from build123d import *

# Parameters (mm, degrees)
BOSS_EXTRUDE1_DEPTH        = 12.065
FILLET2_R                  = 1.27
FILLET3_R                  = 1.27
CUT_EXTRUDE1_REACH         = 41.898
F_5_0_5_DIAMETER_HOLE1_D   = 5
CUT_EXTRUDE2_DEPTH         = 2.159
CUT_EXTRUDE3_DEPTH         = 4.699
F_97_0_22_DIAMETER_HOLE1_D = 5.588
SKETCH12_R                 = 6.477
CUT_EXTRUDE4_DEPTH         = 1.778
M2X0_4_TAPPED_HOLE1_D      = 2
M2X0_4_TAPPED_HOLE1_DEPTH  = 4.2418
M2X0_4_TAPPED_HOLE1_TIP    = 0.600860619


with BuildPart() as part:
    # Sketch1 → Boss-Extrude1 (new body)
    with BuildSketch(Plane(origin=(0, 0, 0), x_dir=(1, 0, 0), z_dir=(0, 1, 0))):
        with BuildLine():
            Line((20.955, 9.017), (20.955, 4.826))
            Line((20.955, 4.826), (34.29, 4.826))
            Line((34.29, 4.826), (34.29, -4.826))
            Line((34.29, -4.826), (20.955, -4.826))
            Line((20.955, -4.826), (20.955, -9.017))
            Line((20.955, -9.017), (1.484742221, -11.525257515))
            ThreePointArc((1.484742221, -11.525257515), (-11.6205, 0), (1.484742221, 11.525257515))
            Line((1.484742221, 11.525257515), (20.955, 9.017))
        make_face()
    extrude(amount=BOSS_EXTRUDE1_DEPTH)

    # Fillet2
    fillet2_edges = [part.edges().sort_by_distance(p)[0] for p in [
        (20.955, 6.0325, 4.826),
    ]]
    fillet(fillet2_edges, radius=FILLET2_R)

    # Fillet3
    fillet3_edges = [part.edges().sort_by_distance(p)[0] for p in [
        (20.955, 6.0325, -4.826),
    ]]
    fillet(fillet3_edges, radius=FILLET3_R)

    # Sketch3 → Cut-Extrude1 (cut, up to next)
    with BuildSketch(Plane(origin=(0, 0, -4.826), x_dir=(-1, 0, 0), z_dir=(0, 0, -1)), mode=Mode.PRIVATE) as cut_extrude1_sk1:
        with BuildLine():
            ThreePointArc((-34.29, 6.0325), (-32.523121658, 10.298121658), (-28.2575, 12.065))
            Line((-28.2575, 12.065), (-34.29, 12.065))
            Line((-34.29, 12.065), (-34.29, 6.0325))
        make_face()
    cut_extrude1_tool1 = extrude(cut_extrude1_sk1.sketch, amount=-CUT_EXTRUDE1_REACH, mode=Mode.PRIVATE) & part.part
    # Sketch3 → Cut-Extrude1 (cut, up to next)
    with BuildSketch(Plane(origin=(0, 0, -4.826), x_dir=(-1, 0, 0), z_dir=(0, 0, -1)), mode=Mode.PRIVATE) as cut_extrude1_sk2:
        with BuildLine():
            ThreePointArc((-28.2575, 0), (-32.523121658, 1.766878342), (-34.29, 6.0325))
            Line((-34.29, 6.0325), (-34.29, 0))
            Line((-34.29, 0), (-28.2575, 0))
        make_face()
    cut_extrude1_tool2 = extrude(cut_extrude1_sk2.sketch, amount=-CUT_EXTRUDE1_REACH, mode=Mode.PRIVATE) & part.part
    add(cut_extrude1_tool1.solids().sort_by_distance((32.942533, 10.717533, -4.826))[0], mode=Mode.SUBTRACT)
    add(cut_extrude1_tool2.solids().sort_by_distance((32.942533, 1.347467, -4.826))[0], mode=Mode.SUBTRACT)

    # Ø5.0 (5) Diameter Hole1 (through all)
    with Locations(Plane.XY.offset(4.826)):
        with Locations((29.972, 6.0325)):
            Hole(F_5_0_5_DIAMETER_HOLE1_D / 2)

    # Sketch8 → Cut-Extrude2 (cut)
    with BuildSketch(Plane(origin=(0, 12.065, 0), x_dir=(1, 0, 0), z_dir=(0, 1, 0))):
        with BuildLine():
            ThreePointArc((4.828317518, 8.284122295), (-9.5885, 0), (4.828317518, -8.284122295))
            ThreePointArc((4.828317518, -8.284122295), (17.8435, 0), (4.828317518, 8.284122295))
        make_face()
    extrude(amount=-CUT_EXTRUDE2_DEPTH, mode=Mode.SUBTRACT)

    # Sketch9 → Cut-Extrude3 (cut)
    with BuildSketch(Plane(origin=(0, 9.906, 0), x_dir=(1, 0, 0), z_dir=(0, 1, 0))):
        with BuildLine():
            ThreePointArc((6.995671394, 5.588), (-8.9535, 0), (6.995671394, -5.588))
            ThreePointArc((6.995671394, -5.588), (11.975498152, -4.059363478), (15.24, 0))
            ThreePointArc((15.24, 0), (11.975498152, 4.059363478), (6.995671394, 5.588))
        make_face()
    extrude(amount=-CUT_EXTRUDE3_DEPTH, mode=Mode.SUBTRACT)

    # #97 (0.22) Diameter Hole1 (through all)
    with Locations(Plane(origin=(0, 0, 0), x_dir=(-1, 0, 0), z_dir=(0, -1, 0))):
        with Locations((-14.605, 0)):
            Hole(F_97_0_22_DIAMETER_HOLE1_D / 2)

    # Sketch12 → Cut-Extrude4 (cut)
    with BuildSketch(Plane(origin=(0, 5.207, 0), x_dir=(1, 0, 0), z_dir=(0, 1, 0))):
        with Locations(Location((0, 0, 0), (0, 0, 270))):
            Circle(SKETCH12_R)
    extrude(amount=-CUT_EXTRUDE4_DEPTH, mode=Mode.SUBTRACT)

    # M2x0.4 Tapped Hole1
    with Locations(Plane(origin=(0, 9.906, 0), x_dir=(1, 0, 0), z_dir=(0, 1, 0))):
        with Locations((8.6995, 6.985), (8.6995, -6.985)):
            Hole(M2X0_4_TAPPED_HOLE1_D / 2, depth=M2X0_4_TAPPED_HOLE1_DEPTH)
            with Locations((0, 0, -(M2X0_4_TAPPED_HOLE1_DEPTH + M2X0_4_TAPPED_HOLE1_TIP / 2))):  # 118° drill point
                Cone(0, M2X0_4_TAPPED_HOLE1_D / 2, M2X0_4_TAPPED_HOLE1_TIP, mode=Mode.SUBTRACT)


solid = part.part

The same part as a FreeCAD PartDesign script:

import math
import FreeCAD as App
import Part
import Sketcher

V = App.Vector
Q = App.Units.Quantity


def edges_at(feature, points):
    """Names of the edges that pass closest to the given points."""
    edges = feature.Shape.Edges
    near = lambda p: min(range(len(edges)), key=lambda i: edges[i].distToShape(Part.Vertex(*p))[0])
    return sorted({f"Edge{near(p) + 1}" for p in points})

doc = App.newDocument("Part")
body = doc.addObject("PartDesign::Body", "Body")

sketch1 = body.newObject("Sketcher::SketchObject", "Sketch")
sketch1.AttachmentSupport = (doc.getObject("XZ_Plane"), [""])
sketch1.MapMode = "FlatFace"
sketch1.addGeometry(Part.LineSegment(V(21, -4.8, 0), V(21, -9, 0)), False)
sketch1.addGeometry(Part.LineSegment(V(21, -9, 0), V(1.5, -11.5, 0)), False)
sketch1.addGeometry(Part.ArcOfCircle(Part.Circle(V(0, 0, 0), V(0, 0, 1), 11.6), math.radians(83), math.radians(277)), False)
sketch1.addGeometry(Part.LineSegment(V(1.5, 11.5, 0), V(21, 9, 0)), False)
sketch1.addGeometry(Part.LineSegment(V(21, 9, 0), V(21, 4.8, 0)), False)
sketch1.addGeometry(Part.LineSegment(V(21, 4.8, 0), V(34.3, 4.8, 0)), False)
sketch1.addGeometry(Part.LineSegment(V(34.3, 4.8, 0), V(34.3, -4.8, 0)), False)
sketch1.addGeometry(Part.LineSegment(V(34.3, -4.8, 0), V(21, -4.8, 0)), False)
sketch1.addConstraint(Sketcher.Constraint("Coincident", 0, 2, 1, 1))
sketch1.addConstraint(Sketcher.Constraint("Tangent", 1, 2, 2, 2))
sketch1.addConstraint(Sketcher.Constraint("Tangent", 2, 1, 3, 1))
sketch1.addConstraint(Sketcher.Constraint("Coincident", 3, 2, 4, 1))
sketch1.addConstraint(Sketcher.Constraint("Coincident", 4, 2, 5, 1))
sketch1.addConstraint(Sketcher.Constraint("Coincident", 5, 2, 6, 1))
sketch1.addConstraint(Sketcher.Constraint("Coincident", 6, 2, 7, 1))
sketch1.addConstraint(Sketcher.Constraint("Coincident", 7, 2, 0, 1))
sketch1.addConstraint(Sketcher.Constraint("Vertical", 0))
sketch1.addConstraint(Sketcher.Constraint("Vertical", 4))
sketch1.addConstraint(Sketcher.Constraint("Horizontal", 5))
sketch1.addConstraint(Sketcher.Constraint("Vertical", 6))
sketch1.addConstraint(Sketcher.Constraint("Horizontal", 7))
sketch1.addConstraint(Sketcher.Constraint("Coincident", 2, 3, -1, 1))
sketch1.addConstraint(Sketcher.Constraint("Symmetric", 0, 2, 3, 2, -1))
sketch1.addConstraint(Sketcher.Constraint("Equal", 0, 4))
sketch1.addConstraint(Sketcher.Constraint("DistanceY", 6, 2, 6, 1, Q("0.38 in")))
sketch1.addConstraint(Sketcher.Constraint("Radius", 2, Q("0.4575 in")))
sketch1.addConstraint(Sketcher.Constraint("DistanceX", 5, 1, 5, 2, Q("0.525 in")))
sketch1.addConstraint(Sketcher.Constraint("DistanceY", 0, 2, 0, 1, Q("0.165 in")))
sketch1.addConstraint(Sketcher.Constraint("DistanceX", -1, 1, 5, 2, Q("1.35 in")))
pad1 = body.newObject("PartDesign::Pad", "Pad")
pad1.Profile = sketch1
pad1.Length = Q("0.475 in")
pad1.Reversed = True
doc.recompute()

fillet = body.newObject("PartDesign::Fillet", "Fillet")
fillet.Base = (pad1, edges_at(pad1, [(20.955, 6.032, 4.826)]))
fillet.Radius = Q("0.05 in")
doc.recompute()

fillet2 = body.newObject("PartDesign::Fillet", "Fillet001")
fillet2.Base = (fillet, edges_at(fillet, [(20.955, 6.032, -4.826)]))
fillet2.Radius = Q("0.05 in")

sketch2 = body.newObject("Sketcher::SketchObject", "Sketch001")
sketch2.AttachmentSupport = (doc.getObject("XY_Plane"), [""])
sketch2.MapMode = "FlatFace"
sketch2.AttachmentOffset = App.Placement(V(0, 0, -0.19 * 25.4), App.Rotation())
sketch2.addGeometry(Part.ArcOfCircle(Part.Circle(V(28, 6, 0), V(0, 0, 1), 6), math.radians(0), math.radians(90)), False)
sketch2.addGeometry(Part.LineSegment(V(28, 12, 0), V(34, 12, 0)), False)
sketch2.addGeometry(Part.LineSegment(V(34, 12, 0), V(34, 6, 0)), False)
sketch2.addConstraint(Sketcher.Constraint("Tangent", 0, 2, 1, 1))
sketch2.addConstraint(Sketcher.Constraint("Coincident", 1, 2, 2, 1))
sketch2.addConstraint(Sketcher.Constraint("Tangent", 2, 2, 0, 1))
sketch2.addConstraint(Sketcher.Constraint("Horizontal", 1))
sketch2.addConstraint(Sketcher.Constraint("Vertical", 2))
sketch2.addConstraint(Sketcher.Constraint("Radius", 0, Q("0.2375 in")))
sketch2.addConstraint(Sketcher.Constraint("DistanceX", -1, 1, 1, 2, Q("1.35 in")))
sketch2.addConstraint(Sketcher.Constraint("DistanceY", -1, 1, 0, 2, Q("0.475 in")))
pocket1 = body.newObject("PartDesign::Pocket", "Pocket")
pocket1.Profile = sketch2
pocket1.Type = "UpToFirst"
pocket1.Reversed = True

sketch3 = body.newObject("Sketcher::SketchObject", "Sketch002")
sketch3.AttachmentSupport = (doc.getObject("XY_Plane"), [""])
sketch3.MapMode = "FlatFace"
sketch3.AttachmentOffset = App.Placement(V(0, 0, -0.19 * 25.4), App.Rotation())
sketch3.addGeometry(Part.ArcOfCircle(Part.Circle(V(28, 6, 0), V(0, 0, 1), 6), math.radians(-90), math.radians(0)), False)
sketch3.addGeometry(Part.LineSegment(V(34, 6, 0), V(34, 0, 0)), False)
sketch3.addGeometry(Part.LineSegment(V(34, 0, 0), V(28, 0, 0)), False)
sketch3.addConstraint(Sketcher.Constraint("Tangent", 0, 2, 1, 1))
sketch3.addConstraint(Sketcher.Constraint("Coincident", 1, 2, 2, 1))
sketch3.addConstraint(Sketcher.Constraint("Tangent", 2, 2, 0, 1))
sketch3.addConstraint(Sketcher.Constraint("Vertical", 1))
sketch3.addConstraint(Sketcher.Constraint("Horizontal", 2))
sketch3.addConstraint(Sketcher.Constraint("PointOnObject", 1, 2, -1))
sketch3.addConstraint(Sketcher.Constraint("Radius", 0, Q("0.2375 in")))
sketch3.addConstraint(Sketcher.Constraint("DistanceX", -1, 1, 0, 2, Q("1.35 in")))
pocket2 = body.newObject("PartDesign::Pocket", "Pocket001")
pocket2.Profile = sketch3
pocket2.Type = "UpToFirst"
pocket2.Reversed = True

sketch4 = body.newObject("Sketcher::SketchObject", "Sketch003")
sketch4.AttachmentSupport = (doc.getObject("XY_Plane"), [""])
sketch4.MapMode = "FlatFace"
sketch4.AttachmentOffset = App.Placement(V(0, 0, 0.19 * 25.4), App.Rotation())
sketch4.addGeometry(Part.Circle(V(30, 6, 0), V(0, 0, 1), 2.5), False)
sketch4.addConstraint(Sketcher.Constraint("Diameter", 0, 5.0))
sketch4.addConstraint(Sketcher.Constraint("DistanceX", -1, 1, 0, 3, Q("1.18 in")))
sketch4.addConstraint(Sketcher.Constraint("DistanceY", -1, 1, 0, 3, Q("0.2375 in")))
doc.recompute()
hole = body.newObject("PartDesign::Hole", "Hole")
hole.Profile = sketch4
hole.ThreadType = "None"
hole.Diameter = 5
hole.DepthType = "ThroughAll"

sketch5 = body.newObject("Sketcher::SketchObject", "Sketch004")
sketch5.AttachmentSupport = (doc.getObject("XZ_Plane"), [""])
sketch5.MapMode = "FlatFace"
sketch5.AttachmentOffset = App.Placement(V(0, 0, -0.475 * 25.4), App.Rotation())
sketch5.addGeometry(Part.ArcOfCircle(Part.Circle(V(0, 0, 0), V(0, 0, 1), 10), math.radians(60), math.radians(300)), False)
sketch5.addGeometry(Part.ArcOfCircle(Part.Circle(V(9, 0, 0), V(0, 0, 1), 9), math.radians(-115), math.radians(115)), False)
sketch5.addConstraint(Sketcher.Constraint("Coincident", 0, 1, 1, 2))
sketch5.addConstraint(Sketcher.Constraint("Coincident", 1, 1, 0, 2))
sketch5.addConstraint(Sketcher.Constraint("Coincident", 0, 3, -1, 1))
sketch5.addConstraint(Sketcher.Constraint("PointOnObject", 1, 3, -1))
sketch5.addConstraint(Sketcher.Constraint("Radius", 1, Q("0.36 in")))
sketch5.addConstraint(Sketcher.Constraint("Radius", 0, Q("0.3775 in")))
sketch5.addConstraint(Sketcher.Constraint("DistanceX", -1, 1, 1, 3, Q("0.3425 in")))
pocket3 = body.newObject("PartDesign::Pocket", "Pocket002")
pocket3.Profile = sketch5
pocket3.Length = Q("0.085 in")
pocket3.Reversed = True

sketch6 = body.newObject("Sketcher::SketchObject", "Sketch005")
sketch6.AttachmentSupport = (doc.getObject("XZ_Plane"), [""])
sketch6.MapMode = "FlatFace"
sketch6.AttachmentOffset = App.Placement(V(0, 0, -0.39 * 25.4), App.Rotation())
sketch6.addGeometry(Part.ArcOfCircle(Part.Circle(V(0, 0, 0), V(0, 0, 1), 9), math.radians(39), math.radians(321)), False)
sketch6.addGeometry(Part.ArcOfCircle(Part.Circle(V(7, -3, 0), V(0, 0, 1), 9), math.radians(22), math.radians(90)), False)
sketch6.addGeometry(Part.ArcOfCircle(Part.Circle(V(7, 3, 0), V(0, 0, 1), 9), math.radians(-90), math.radians(-22)), False)
sketch6.addConstraint(Sketcher.Constraint("Coincident", 0, 1, 1, 2))
sketch6.addConstraint(Sketcher.Constraint("Coincident", 1, 1, 2, 2))
sketch6.addConstraint(Sketcher.Constraint("Coincident", 2, 1, 0, 2))
sketch6.addConstraint(Sketcher.Constraint("Coincident", 0, 3, -1, 1))
sketch6.addConstraint(Sketcher.Constraint("Equal", 1, 2))
sketch6.addConstraint(Sketcher.Constraint("Symmetric", 1, 3, 2, 3, -1))
sketch6.addConstraint(Sketcher.Constraint("Vertical", 2, 3, 0, 1))
sketch6.addConstraint(Sketcher.Constraint("DistanceX", -1, 1, 1, 1, Q("0.6 in")))
sketch6.addConstraint(Sketcher.Constraint("Radius", 0, Q("0.3525 in")))
sketch6.addConstraint(Sketcher.Constraint("DistanceY", -1, 1, 0, 1, Q("0.22 in")))
pocket4 = body.newObject("PartDesign::Pocket", "Pocket003")
pocket4.Profile = sketch6
pocket4.Length = Q("0.185 in")
pocket4.Reversed = True

sketch7 = body.newObject("Sketcher::SketchObject", "Sketch006")
sketch7.AttachmentSupport = (doc.getObject("XZ_Plane"), [""])
sketch7.MapMode = "FlatFace"
sketch7.addGeometry(Part.Circle(V(14.6, 0, 0), V(0, 0, 1), 2.8), False)
sketch7.addConstraint(Sketcher.Constraint("PointOnObject", 0, 3, -1))
sketch7.addConstraint(Sketcher.Constraint("Diameter", 0, Q("0.22 in")))
sketch7.addConstraint(Sketcher.Constraint("DistanceX", -1, 1, 0, 3, Q("0.575 in")))
doc.recompute()
hole2 = body.newObject("PartDesign::Hole", "Hole001")
hole2.Profile = sketch7
hole2.ThreadType = "None"
hole2.Diameter = Q("0.22 in")
hole2.DepthType = "ThroughAll"

sketch8 = body.newObject("Sketcher::SketchObject", "Sketch007")
sketch8.AttachmentSupport = (doc.getObject("XZ_Plane"), [""])
sketch8.MapMode = "FlatFace"
sketch8.AttachmentOffset = App.Placement(V(0, 0, -0.205 * 25.4), App.Rotation())
sketch8.addGeometry(Part.Circle(V(0, 0, 0), V(0, 0, 1), 6), False)
sketch8.addConstraint(Sketcher.Constraint("Coincident", 0, 3, -1, 1))
sketch8.addConstraint(Sketcher.Constraint("Diameter", 0, Q("0.51 in")))
pocket5 = body.newObject("PartDesign::Pocket", "Pocket004")
pocket5.Profile = sketch8
pocket5.Length = Q("0.07 in")
pocket5.Reversed = True

sketch9 = body.newObject("Sketcher::SketchObject", "Sketch008")
sketch9.AttachmentSupport = (doc.getObject("XZ_Plane"), [""])
sketch9.MapMode = "FlatFace"
sketch9.AttachmentOffset = App.Placement(V(0, 0, -0.39 * 25.4), App.Rotation())
sketch9.addGeometry(Part.Circle(V(8.7, -7, 0), V(0, 0, 1), 1), False)
sketch9.addGeometry(Part.Circle(V(8.7, 7, 0), V(0, 0, 1), 1), False)
sketch9.addConstraint(Sketcher.Constraint("Equal", 0, 1))
sketch9.addConstraint(Sketcher.Constraint("Symmetric", 0, 3, 1, 3, -1))
sketch9.addConstraint(Sketcher.Constraint("Diameter", 0, 2.0))
sketch9.addConstraint(Sketcher.Constraint("DistanceY", 0, 3, 1, 3, Q("0.55 in")))
sketch9.addConstraint(Sketcher.Constraint("DistanceX", -1, 1, 0, 3, Q("0.3425 in")))
doc.recompute()
hole3 = body.newObject("PartDesign::Hole", "Hole002")
hole3.Profile = sketch9
hole3.ThreadType = "None"
hole3.Diameter = 2
hole3.DepthType = "Dimension"
hole3.Depth = Q("0.167 in")
hole3.DrillPoint = "Angled"
hole3.DrillPointAngle = 118
hole3.Reversed = True

doc.recompute()
